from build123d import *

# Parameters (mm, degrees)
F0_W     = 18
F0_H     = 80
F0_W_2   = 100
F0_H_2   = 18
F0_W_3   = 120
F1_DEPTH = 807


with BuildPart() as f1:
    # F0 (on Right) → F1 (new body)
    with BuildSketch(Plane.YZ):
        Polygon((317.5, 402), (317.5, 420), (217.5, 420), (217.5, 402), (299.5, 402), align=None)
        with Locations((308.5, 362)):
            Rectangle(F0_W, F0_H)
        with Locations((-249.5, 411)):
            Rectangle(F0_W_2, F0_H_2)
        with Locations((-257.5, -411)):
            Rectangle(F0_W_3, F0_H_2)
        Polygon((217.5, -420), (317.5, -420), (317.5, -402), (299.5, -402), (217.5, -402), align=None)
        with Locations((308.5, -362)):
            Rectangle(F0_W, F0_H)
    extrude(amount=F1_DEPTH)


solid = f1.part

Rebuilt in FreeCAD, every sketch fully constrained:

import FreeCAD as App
import Part
import Sketcher
from FreeCAD import Vector


def add_polygon(sketch, points):
    """Adds a closed chain of lines whose ends are joined by coincident constraints."""
    first, n = sketch.GeometryCount, len(points)
    for a, b in zip(points, points[1:] + points[:1]):
        sketch.addGeometry(Part.LineSegment(App.Vector(*a, 0), App.Vector(*b, 0)), False)
    for i in range(n):
        sketch.addConstraint(Sketcher.Constraint("Coincident", first + i, 2, first + (i + 1) % n, 1))

doc = App.newDocument("Part")
params = doc.addObject("Spreadsheet::Sheet", "Params")
for row, (alias, value) in enumerate([
    ("sketch1_width", "100 mm"),
    ("sketch1_width2", "82 mm"),
    ("sketch1_width3", "120 mm"),
    ("sketch1_height", "80 mm"),
    ("pad1_length", "807 mm"),
], start=1):
    params.set(f"A{row}", alias)
    params.set(f"B{row}", "=" + value)
    params.setAlias(f"B{row}", alias)

body = doc.addObject("PartDesign::Body", "Body")
body.AllowCompound = True

# Sketch on YZ plane
sketch1 = body.newObject("Sketcher::SketchObject", "Sketch")
sketch1.AttachmentSupport = (doc.getObject("YZ_Plane"), [""])
sketch1.MapMode = "FlatFace"
add_polygon(sketch1, [(317.5, 420), (217.5, 420), (217.5, 402), (299.5, 402), (299.5, 322), (317.5, 322)])  # lines 0-5
add_polygon(sketch1, [(-299.5, 420), (-299.5, 402), (-199.5, 402), (-199.5, 420)])  # lines 6-9
add_polygon(sketch1, [(-317.5, -402), (-317.5, -420), (-197.5, -420), (-197.5, -402)])  # lines 10-13
add_polygon(sketch1, [(217.5, -420), (317.5, -420), (317.5, -322), (299.5, -322), (299.5, -402), (217.5, -402)])  # lines 14-19
sketch1.addConstraint(Sketcher.Constraint("Horizontal", 0))
sketch1.addConstraint(Sketcher.Constraint("Vertical", 1))
sketch1.addConstraint(Sketcher.Constraint("Horizontal", 2))
sketch1.addConstraint(Sketcher.Constraint("Vertical", 3))
sketch1.addConstraint(Sketcher.Constraint("Horizontal", 4))
sketch1.addConstraint(Sketcher.Constraint("Vertical", 5))
sketch1.addConstraint(Sketcher.Constraint("Vertical", 6))
sketch1.addConstraint(Sketcher.Constraint("Horizontal", 7))
sketch1.addConstraint(Sketcher.Constraint("Vertical", 8))
sketch1.addConstraint(Sketcher.Constraint("Horizontal", 9))
sketch1.addConstraint(Sketcher.Constraint("Vertical", 10))
sketch1.addConstraint(Sketcher.Constraint("Horizontal", 11))
sketch1.addConstraint(Sketcher.Constraint("Vertical", 12))
sketch1.addConstraint(Sketcher.Constraint("Horizontal", 13))
sketch1.addConstraint(Sketcher.Constraint("Horizontal", 14))
sketch1.addConstraint(Sketcher.Constraint("Vertical", 15))
sketch1.addConstraint(Sketcher.Constraint("Horizontal", 16))
sketch1.addConstraint(Sketcher.Constraint("Vertical", 17))
sketch1.addConstraint(Sketcher.Constraint("Horizontal", 18))
sketch1.addConstraint(Sketcher.Constraint("Vertical", 19))
sketch1.addConstraint(Sketcher.Constraint("Symmetric", 5, 2, 10, 2, -1, 1))
sketch1.addConstraint(Sketcher.Constraint("Symmetric", 6, 2, 17, 2, -1, 1))
sketch1.addConstraint(Sketcher.Constraint("Symmetric", 2, 2, 6, 2, -2))
sketch1.addConstraint(Sketcher.Constraint("Symmetric", 10, 2, 14, 2, -2))
sketch1.addConstraint(Sketcher.Constraint("Horizontal", 5, 2, 8, 2))
sketch1.addConstraint(Sketcher.Constraint("Horizontal", 13, 2, 17, 2))
sketch1.addConstraint(Sketcher.Constraint("Vertical", 1, 2, 18, 2))
sketch1.addConstraint(Sketcher.Constraint("Equal", 0, 7))
sketch1.addConstraint(Sketcher.Constraint("Equal", 16, 1))
sketch1.addConstraint(Sketcher.Constraint("Equal", 5, 15))
sketch1.addConstraint(Sketcher.Constraint("DistanceX", 0, 2, 0, 1, 100.0))
sketch1.addConstraint(Sketcher.Constraint("DistanceX", 2, 1, 2, 2, 82.0))
sketch1.addConstraint(Sketcher.Constraint("DistanceX", 11, 1, 11, 2, 120.0))
sketch1.addConstraint(Sketcher.Constraint("DistanceY", 3, 2, 3, 1, 80.0))
sketch1.addConstraint(Sketcher.Constraint("DistanceY", -1, 1, 0, 2, 420.0))
sketch1.addConstraint(Sketcher.Constraint("DistanceX", 6, 2, 1, 2, 517.0))
sketch1.setExpression("Constraints[50]", "Params.sketch1_width")
sketch1.setExpression("Constraints[51]", "Params.sketch1_width2")
sketch1.setExpression("Constraints[52]", "Params.sketch1_width3")
sketch1.setExpression("Constraints[53]", "Params.sketch1_height")
pad1 = body.newObject("PartDesign::Pad", "Pad")
pad1.Profile = sketch1
pad1.setExpression("Length", "Params.pad1_length")

doc.recompute()
